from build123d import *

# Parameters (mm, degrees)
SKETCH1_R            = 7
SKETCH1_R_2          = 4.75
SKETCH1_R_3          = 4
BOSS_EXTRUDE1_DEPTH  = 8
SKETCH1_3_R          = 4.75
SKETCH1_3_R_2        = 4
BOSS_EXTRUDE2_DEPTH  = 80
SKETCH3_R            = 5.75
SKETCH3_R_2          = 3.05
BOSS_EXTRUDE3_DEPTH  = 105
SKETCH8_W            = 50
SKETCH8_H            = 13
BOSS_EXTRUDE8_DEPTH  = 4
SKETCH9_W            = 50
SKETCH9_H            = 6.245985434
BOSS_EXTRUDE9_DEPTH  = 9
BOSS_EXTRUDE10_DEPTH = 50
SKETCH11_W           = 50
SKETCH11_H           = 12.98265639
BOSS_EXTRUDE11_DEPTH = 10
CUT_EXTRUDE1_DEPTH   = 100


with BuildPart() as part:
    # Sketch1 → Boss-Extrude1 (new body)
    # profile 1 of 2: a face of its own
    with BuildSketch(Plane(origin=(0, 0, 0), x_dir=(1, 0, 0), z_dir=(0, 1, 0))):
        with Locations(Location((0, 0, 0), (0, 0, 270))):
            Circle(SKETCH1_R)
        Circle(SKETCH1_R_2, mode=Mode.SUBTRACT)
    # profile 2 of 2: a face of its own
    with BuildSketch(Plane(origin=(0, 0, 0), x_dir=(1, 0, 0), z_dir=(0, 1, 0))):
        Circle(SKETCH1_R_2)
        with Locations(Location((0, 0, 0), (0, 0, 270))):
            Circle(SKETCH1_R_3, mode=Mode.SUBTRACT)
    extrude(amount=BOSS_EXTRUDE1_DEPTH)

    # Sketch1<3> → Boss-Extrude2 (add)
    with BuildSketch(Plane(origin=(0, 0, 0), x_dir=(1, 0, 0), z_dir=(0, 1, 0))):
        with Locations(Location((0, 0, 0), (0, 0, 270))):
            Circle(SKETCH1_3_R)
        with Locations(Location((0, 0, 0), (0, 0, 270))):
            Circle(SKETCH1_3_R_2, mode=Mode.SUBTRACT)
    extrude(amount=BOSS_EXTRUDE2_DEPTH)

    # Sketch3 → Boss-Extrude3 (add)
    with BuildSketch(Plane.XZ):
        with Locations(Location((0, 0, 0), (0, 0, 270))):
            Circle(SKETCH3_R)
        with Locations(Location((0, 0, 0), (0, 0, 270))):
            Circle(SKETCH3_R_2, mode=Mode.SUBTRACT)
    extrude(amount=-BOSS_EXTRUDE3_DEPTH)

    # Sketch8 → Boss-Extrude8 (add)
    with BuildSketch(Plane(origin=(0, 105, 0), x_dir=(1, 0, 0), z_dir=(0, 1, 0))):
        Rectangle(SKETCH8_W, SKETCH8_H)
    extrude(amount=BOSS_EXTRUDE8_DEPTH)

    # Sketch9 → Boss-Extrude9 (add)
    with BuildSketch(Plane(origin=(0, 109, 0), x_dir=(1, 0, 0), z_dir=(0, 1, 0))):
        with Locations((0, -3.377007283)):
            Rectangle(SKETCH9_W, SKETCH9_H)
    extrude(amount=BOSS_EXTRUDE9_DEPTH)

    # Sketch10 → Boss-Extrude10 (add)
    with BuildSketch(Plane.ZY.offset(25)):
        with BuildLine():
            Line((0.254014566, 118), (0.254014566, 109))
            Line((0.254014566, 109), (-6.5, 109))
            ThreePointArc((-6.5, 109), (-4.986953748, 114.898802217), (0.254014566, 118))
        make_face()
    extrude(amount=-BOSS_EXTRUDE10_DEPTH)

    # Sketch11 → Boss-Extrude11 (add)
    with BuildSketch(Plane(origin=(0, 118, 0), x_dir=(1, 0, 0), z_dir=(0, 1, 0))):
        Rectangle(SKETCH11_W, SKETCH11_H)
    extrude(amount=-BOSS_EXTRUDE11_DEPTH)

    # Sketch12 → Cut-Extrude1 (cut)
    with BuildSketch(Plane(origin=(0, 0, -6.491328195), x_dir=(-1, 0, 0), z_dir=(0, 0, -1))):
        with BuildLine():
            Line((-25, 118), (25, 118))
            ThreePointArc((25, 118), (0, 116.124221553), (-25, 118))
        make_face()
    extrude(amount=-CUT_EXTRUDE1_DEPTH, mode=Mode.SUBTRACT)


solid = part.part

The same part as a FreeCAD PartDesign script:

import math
import FreeCAD as App
import Part
import Sketcher

V = App.Vector

doc = App.newDocument("Part")
body = doc.addObject("PartDesign::Body", "Body")

sketch1 = body.newObject("Sketcher::SketchObject", "Sketch")
sketch1.AttachmentSupport = (doc.getObject("XZ_Plane"), [""])
sketch1.MapMode = "FlatFace"
sketch1.addGeometry(Part.Circle(V(0, 0, 0), V(0, 0, 1), 7), False)
sketch1.addGeometry(Part.Circle(V(0, 0, 0), V(0, 0, 1), 4), False)
sketch1.addConstraint(Sketcher.Constraint("Coincident", 0, 3, -1, 1))
sketch1.addConstraint(Sketcher.Constraint("Coincident", 1, 3, -1, 1))
sketch1.addConstraint(Sketcher.Constraint("Diameter", 0, 14.0))
sketch1.addConstraint(Sketcher.Constraint("Diameter", 1, 8.0))
pad1 = body.newObject("PartDesign::Pad", "Pad")
pad1.Profile = sketch1
pad1.Length = 8
pad1.Reversed = True

sketch2 = body.newObject("Sketcher::SketchObject", "Sketch001")
sketch2.AttachmentSupport = (doc.getObject("XZ_Plane"), [""])
sketch2.MapMode = "FlatFace"
sketch2.addGeometry(Part.Circle(V(0, 0, 0), V(0, 0, 1), 4.8), False)
sketch2.addGeometry(Part.Circle(V(0, 0, 0), V(0, 0, 1), 4), False)
sketch2.addConstraint(Sketcher.Constraint("Coincident", 0, 3, -1, 1))
sketch2.addConstraint(Sketcher.Constraint("Coincident", 1, 3, -1, 1))
sketch2.addConstraint(Sketcher.Constraint("Diameter", 1, 8.0))
sketch2.addConstraint(Sketcher.Constraint("Diameter", 0, 9.5))
pad2 = body.newObject("PartDesign::Pad", "Pad001")
pad2.Profile = sketch2
pad2.Length = 80
pad2.Reversed = True

sketch3 = body.newObject("Sketcher::SketchObject", "Sketch002")
sketch3.AttachmentSupport = (doc.getObject("XZ_Plane"), [""])
sketch3.MapMode = "FlatFace"
sketch3.addGeometry(Part.Circle(V(0, 0, 0), V(0, 0, 1), 5.8), False)
sketch3.addGeometry(Part.Circle(V(0, 0, 0), V(0, 0, 1), 3), False)
sketch3.addConstraint(Sketcher.Constraint("Coincident", 0, 3, -1, 1))
sketch3.addConstraint(Sketcher.Constraint("Coincident", 1, 3, -1, 1))
sketch3.addConstraint(Sketcher.Constraint("Diameter", 0, 11.5))
sketch3.addConstraint(Sketcher.Constraint("Diameter", 1, 6.1))
pad3 = body.newObject("PartDesign::Pad", "Pad002")
pad3.Profile = sketch3
pad3.Length = 105
pad3.Reversed = True

sketch4 = body.newObject("Sketcher::SketchObject", "Sketch003")
sketch4.AttachmentSupport = (doc.getObject("XZ_Plane"), [""])
sketch4.MapMode = "FlatFace"
sketch4.AttachmentOffset = App.Placement(V(0, 0, -105), App.Rotation())
sketch4.addGeometry(Part.LineSegment(V(-25, -6, 0), V(-25, 6, 0)), False)
sketch4.addGeometry(Part.LineSegment(V(-25, 6, 0), V(25, 6, 0)), False)
sketch4.addGeometry(Part.LineSegment(V(25, 6, 0), V(25, -6, 0)), False)
sketch4.addGeometry(Part.LineSegment(V(25, -6, 0), V(-25, -6, 0)), False)
sketch4.addConstraint(Sketcher.Constraint("Coincident", 0, 2, 1, 1))
sketch4.addConstraint(Sketcher.Constraint("Coincident", 1, 2, 2, 1))
sketch4.addConstraint(Sketcher.Constraint("Coincident", 2, 2, 3, 1))
sketch4.addConstraint(Sketcher.Constraint("Coincident", 3, 2, 0, 1))
sketch4.addConstraint(Sketcher.Constraint("Vertical", 0))
sketch4.addConstraint(Sketcher.Constraint("Horizontal", 1))
sketch4.addConstraint(Sketcher.Constraint("Vertical", 2))
sketch4.addConstraint(Sketcher.Constraint("Horizontal", 3))
sketch4.addConstraint(Sketcher.Constraint("Symmetric", 0, 2, 2, 2, -1, 1))
sketch4.addConstraint(Sketcher.Constraint("DistanceX", 1, 1, 1, 2, 50.0))
sketch4.addConstraint(Sketcher.Constraint("DistanceY", 0, 1, 0, 2, 13.0))
pad4 = body.newObject("PartDesign::Pad", "Pad003")
pad4.Profile = sketch4
pad4.Length = 4
pad4.Reversed = True

sketch5 = body.newObject("Sketcher::SketchObject", "Sketch004")
sketch5.AttachmentSupport = (doc.getObject("XZ_Plane"), [""])
sketch5.MapMode = "FlatFace"
sketch5.AttachmentOffset = App.Placement(V(0, 0, -109), App.Rotation())
sketch5.addGeometry(Part.LineSegment(V(-25, 0, 0), V(-25, 6, 0)), False)
sketch5.addGeometry(Part.LineSegment(V(-25, 6, 0), V(25, 6, 0)), False)
sketch5.addGeometry(Part.LineSegment(V(25, 6, 0), V(25, 0, 0)), False)
sketch5.addGeometry(Part.LineSegment(V(25, 0, 0), V(-25, 0, 0)), False)
sketch5.addConstraint(Sketcher.Constraint("Coincident", 0, 2, 1, 1))
sketch5.addConstraint(Sketcher.Constraint("Coincident", 1, 2, 2, 1))
sketch5.addConstraint(Sketcher.Constraint("Coincident", 2, 2, 3, 1))
sketch5.addConstraint(Sketcher.Constraint("Coincident", 3, 2, 0, 1))
sketch5.addConstraint(Sketcher.Constraint("Vertical", 0))
sketch5.addConstraint(Sketcher.Constraint("Horizontal", 1))
sketch5.addConstraint(Sketcher.Constraint("Vertical", 2))
sketch5.addConstraint(Sketcher.Constraint("Horizontal", 3))
sketch5.addConstraint(Sketcher.Constraint("DistanceX", 1, 1, 1, 2, 50.0))
sketch5.addConstraint(Sketcher.Constraint("DistanceX", 0, 2, -1, 1, 25.0))
sketch5.addConstraint(Sketcher.Constraint("DistanceY", -1, 1, 0, 2, 6.5))
sketch5.addConstraint(Sketcher.Constraint("DistanceY", 0, 1, 0, 2, 6.245985))
pad5 = body.newObject("PartDesign::Pad", "Pad004")
pad5.Profile = sketch5
pad5.Length = 9
pad5.Reversed = True

sketch6 = body.newObject("Sketcher::SketchObject", "Sketch005")
sketch6.AttachmentSupport = (doc.getObject("YZ_Plane"), [""])
sketch6.MapMode = "FlatFace"
sketch6.AttachmentOffset = App.Placement(V(0, 0, -25), App.Rotation())
sketch6.addGeometry(Part.LineSegment(V(109, 0, 0), V(118, 0, 0)), False)
sketch6.addGeometry(Part.ArcOfCircle(Part.Circle(V(110, 1, 0), V(0, 0, 1), 8), math.radians(-98), math.radians(-8)), False)
sketch6.addGeometry(Part.LineSegment(V(109, -6, 0), V(109, 0, 0)), False)
sketch6.addConstraint(Sketcher.Constraint("Coincident", 0, 2, 1, 2))
sketch6.addConstraint(Sketcher.Constraint("Coincident", 1, 1, 2, 1))
sketch6.addConstraint(Sketcher.Constraint("Coincident", 2, 2, 0, 1))
sketch6.addConstraint(Sketcher.Constraint("Horizontal", 0))
sketch6.addConstraint(Sketcher.Constraint("Vertical", 2))
sketch6.addConstraint(Sketcher.Constraint("DistanceX", 0, 1, 0, 2, 9.0))
sketch6.addConstraint(Sketcher.Constraint("DistanceX", -1, 1, 0, 2, 118.0))
sketch6.addConstraint(Sketcher.Constraint("DistanceY", 1, 1, -1, 1, 6.5))
sketch6.addConstraint(Sketcher.Constraint("Radius", 1, 7.956655))
sketch6.addConstraint(Sketcher.Constraint("DistanceY", 2, 1, 2, 2, 6.754015))
pad6 = body.newObject("PartDesign::Pad", "Pad005")
pad6.Profile = sketch6
pad6.Length = 50

sketch7 = body.newObject("Sketcher::SketchObject", "Sketch006")
sketch7.AttachmentSupport = (doc.getObject("XZ_Plane"), [""])
sketch7.MapMode = "FlatFace"
sketch7.AttachmentOffset = App.Placement(V(0, 0, -118), App.Rotation())
sketch7.addGeometry(Part.LineSegment(V(-25, -6, 0), V(-25, 6, 0)), False)
sketch7.addGeometry(Part.LineSegment(V(-25, 6, 0), V(25, 6, 0)), False)
sketch7.addGeometry(Part.LineSegment(V(25, 6, 0), V(25, -6, 0)), False)
sketch7.addGeometry(Part.LineSegment(V(25, -6, 0), V(-25, -6, 0)), False)
sketch7.addConstraint(Sketcher.Constraint("Coincident", 0, 2, 1, 1))
sketch7.addConstraint(Sketcher.Constraint("Coincident", 1, 2, 2, 1))
sketch7.addConstraint(Sketcher.Constraint("Coincident", 2, 2, 3, 1))
sketch7.addConstraint(Sketcher.Constraint("Coincident", 3, 2, 0, 1))
sketch7.addConstraint(Sketcher.Constraint("Vertical", 0))
sketch7.addConstraint(Sketcher.Constraint("Horizontal", 1))
sketch7.addConstraint(Sketcher.Constraint("Vertical", 2))
sketch7.addConstraint(Sketcher.Constraint("Horizontal", 3))
sketch7.addConstraint(Sketcher.Constraint("Symmetric", 0, 2, 2, 2, -1, 1))
sketch7.addConstraint(Sketcher.Constraint("DistanceX", 1, 1, 1, 2, 50.0))
sketch7.addConstraint(Sketcher.Constraint("DistanceY", 0, 1, 0, 2, 12.982656))
pad7 = body.newObject("PartDesign::Pad", "Pad006")
pad7.Profile = sketch7
pad7.Length = 10

sketch8 = body.newObject("Sketcher::SketchObject", "Sketch007")
sketch8.AttachmentSupport = (doc.getObject("XY_Plane"), [""])
sketch8.MapMode = "FlatFace"
sketch8.AttachmentOffset = App.Placement(V(0, 0, -6.491328), App.Rotation())
sketch8.addGeometry(Part.LineSegment(V(-25, 118, 0), V(25, 118, 0)), False)
sketch8.addGeometry(Part.ArcOfCircle(Part.Circle(V(0, 284, 0), V(0, 0, 1), 168), math.radians(-98.58), math.radians(-81.42)), False)
sketch8.addConstraint(Sketcher.Constraint("Coincident", 0, 1, 1, 1))
sketch8.addConstraint(Sketcher.Constraint("Coincident", 1, 2, 0, 2))
sketch8.addConstraint(Sketcher.Constraint("Horizontal", 0))
sketch8.addConstraint(Sketcher.Constraint("PointOnObject", 1, 3, -2))
sketch8.addConstraint(Sketcher.Constraint("DistanceX", 0, 1, 0, 2, 50.0))
sketch8.addConstraint(Sketcher.Constraint("DistanceY", -1, 1, 0, 1, 118.0))
sketch8.addConstraint(Sketcher.Constraint("Radius", 1, 167.535389))
pocket1 = body.newObject("PartDesign::Pocket", "Pocket")
pocket1.Profile = sketch8
pocket1.Length = 100
pocket1.Reversed = True

doc.recompute()
